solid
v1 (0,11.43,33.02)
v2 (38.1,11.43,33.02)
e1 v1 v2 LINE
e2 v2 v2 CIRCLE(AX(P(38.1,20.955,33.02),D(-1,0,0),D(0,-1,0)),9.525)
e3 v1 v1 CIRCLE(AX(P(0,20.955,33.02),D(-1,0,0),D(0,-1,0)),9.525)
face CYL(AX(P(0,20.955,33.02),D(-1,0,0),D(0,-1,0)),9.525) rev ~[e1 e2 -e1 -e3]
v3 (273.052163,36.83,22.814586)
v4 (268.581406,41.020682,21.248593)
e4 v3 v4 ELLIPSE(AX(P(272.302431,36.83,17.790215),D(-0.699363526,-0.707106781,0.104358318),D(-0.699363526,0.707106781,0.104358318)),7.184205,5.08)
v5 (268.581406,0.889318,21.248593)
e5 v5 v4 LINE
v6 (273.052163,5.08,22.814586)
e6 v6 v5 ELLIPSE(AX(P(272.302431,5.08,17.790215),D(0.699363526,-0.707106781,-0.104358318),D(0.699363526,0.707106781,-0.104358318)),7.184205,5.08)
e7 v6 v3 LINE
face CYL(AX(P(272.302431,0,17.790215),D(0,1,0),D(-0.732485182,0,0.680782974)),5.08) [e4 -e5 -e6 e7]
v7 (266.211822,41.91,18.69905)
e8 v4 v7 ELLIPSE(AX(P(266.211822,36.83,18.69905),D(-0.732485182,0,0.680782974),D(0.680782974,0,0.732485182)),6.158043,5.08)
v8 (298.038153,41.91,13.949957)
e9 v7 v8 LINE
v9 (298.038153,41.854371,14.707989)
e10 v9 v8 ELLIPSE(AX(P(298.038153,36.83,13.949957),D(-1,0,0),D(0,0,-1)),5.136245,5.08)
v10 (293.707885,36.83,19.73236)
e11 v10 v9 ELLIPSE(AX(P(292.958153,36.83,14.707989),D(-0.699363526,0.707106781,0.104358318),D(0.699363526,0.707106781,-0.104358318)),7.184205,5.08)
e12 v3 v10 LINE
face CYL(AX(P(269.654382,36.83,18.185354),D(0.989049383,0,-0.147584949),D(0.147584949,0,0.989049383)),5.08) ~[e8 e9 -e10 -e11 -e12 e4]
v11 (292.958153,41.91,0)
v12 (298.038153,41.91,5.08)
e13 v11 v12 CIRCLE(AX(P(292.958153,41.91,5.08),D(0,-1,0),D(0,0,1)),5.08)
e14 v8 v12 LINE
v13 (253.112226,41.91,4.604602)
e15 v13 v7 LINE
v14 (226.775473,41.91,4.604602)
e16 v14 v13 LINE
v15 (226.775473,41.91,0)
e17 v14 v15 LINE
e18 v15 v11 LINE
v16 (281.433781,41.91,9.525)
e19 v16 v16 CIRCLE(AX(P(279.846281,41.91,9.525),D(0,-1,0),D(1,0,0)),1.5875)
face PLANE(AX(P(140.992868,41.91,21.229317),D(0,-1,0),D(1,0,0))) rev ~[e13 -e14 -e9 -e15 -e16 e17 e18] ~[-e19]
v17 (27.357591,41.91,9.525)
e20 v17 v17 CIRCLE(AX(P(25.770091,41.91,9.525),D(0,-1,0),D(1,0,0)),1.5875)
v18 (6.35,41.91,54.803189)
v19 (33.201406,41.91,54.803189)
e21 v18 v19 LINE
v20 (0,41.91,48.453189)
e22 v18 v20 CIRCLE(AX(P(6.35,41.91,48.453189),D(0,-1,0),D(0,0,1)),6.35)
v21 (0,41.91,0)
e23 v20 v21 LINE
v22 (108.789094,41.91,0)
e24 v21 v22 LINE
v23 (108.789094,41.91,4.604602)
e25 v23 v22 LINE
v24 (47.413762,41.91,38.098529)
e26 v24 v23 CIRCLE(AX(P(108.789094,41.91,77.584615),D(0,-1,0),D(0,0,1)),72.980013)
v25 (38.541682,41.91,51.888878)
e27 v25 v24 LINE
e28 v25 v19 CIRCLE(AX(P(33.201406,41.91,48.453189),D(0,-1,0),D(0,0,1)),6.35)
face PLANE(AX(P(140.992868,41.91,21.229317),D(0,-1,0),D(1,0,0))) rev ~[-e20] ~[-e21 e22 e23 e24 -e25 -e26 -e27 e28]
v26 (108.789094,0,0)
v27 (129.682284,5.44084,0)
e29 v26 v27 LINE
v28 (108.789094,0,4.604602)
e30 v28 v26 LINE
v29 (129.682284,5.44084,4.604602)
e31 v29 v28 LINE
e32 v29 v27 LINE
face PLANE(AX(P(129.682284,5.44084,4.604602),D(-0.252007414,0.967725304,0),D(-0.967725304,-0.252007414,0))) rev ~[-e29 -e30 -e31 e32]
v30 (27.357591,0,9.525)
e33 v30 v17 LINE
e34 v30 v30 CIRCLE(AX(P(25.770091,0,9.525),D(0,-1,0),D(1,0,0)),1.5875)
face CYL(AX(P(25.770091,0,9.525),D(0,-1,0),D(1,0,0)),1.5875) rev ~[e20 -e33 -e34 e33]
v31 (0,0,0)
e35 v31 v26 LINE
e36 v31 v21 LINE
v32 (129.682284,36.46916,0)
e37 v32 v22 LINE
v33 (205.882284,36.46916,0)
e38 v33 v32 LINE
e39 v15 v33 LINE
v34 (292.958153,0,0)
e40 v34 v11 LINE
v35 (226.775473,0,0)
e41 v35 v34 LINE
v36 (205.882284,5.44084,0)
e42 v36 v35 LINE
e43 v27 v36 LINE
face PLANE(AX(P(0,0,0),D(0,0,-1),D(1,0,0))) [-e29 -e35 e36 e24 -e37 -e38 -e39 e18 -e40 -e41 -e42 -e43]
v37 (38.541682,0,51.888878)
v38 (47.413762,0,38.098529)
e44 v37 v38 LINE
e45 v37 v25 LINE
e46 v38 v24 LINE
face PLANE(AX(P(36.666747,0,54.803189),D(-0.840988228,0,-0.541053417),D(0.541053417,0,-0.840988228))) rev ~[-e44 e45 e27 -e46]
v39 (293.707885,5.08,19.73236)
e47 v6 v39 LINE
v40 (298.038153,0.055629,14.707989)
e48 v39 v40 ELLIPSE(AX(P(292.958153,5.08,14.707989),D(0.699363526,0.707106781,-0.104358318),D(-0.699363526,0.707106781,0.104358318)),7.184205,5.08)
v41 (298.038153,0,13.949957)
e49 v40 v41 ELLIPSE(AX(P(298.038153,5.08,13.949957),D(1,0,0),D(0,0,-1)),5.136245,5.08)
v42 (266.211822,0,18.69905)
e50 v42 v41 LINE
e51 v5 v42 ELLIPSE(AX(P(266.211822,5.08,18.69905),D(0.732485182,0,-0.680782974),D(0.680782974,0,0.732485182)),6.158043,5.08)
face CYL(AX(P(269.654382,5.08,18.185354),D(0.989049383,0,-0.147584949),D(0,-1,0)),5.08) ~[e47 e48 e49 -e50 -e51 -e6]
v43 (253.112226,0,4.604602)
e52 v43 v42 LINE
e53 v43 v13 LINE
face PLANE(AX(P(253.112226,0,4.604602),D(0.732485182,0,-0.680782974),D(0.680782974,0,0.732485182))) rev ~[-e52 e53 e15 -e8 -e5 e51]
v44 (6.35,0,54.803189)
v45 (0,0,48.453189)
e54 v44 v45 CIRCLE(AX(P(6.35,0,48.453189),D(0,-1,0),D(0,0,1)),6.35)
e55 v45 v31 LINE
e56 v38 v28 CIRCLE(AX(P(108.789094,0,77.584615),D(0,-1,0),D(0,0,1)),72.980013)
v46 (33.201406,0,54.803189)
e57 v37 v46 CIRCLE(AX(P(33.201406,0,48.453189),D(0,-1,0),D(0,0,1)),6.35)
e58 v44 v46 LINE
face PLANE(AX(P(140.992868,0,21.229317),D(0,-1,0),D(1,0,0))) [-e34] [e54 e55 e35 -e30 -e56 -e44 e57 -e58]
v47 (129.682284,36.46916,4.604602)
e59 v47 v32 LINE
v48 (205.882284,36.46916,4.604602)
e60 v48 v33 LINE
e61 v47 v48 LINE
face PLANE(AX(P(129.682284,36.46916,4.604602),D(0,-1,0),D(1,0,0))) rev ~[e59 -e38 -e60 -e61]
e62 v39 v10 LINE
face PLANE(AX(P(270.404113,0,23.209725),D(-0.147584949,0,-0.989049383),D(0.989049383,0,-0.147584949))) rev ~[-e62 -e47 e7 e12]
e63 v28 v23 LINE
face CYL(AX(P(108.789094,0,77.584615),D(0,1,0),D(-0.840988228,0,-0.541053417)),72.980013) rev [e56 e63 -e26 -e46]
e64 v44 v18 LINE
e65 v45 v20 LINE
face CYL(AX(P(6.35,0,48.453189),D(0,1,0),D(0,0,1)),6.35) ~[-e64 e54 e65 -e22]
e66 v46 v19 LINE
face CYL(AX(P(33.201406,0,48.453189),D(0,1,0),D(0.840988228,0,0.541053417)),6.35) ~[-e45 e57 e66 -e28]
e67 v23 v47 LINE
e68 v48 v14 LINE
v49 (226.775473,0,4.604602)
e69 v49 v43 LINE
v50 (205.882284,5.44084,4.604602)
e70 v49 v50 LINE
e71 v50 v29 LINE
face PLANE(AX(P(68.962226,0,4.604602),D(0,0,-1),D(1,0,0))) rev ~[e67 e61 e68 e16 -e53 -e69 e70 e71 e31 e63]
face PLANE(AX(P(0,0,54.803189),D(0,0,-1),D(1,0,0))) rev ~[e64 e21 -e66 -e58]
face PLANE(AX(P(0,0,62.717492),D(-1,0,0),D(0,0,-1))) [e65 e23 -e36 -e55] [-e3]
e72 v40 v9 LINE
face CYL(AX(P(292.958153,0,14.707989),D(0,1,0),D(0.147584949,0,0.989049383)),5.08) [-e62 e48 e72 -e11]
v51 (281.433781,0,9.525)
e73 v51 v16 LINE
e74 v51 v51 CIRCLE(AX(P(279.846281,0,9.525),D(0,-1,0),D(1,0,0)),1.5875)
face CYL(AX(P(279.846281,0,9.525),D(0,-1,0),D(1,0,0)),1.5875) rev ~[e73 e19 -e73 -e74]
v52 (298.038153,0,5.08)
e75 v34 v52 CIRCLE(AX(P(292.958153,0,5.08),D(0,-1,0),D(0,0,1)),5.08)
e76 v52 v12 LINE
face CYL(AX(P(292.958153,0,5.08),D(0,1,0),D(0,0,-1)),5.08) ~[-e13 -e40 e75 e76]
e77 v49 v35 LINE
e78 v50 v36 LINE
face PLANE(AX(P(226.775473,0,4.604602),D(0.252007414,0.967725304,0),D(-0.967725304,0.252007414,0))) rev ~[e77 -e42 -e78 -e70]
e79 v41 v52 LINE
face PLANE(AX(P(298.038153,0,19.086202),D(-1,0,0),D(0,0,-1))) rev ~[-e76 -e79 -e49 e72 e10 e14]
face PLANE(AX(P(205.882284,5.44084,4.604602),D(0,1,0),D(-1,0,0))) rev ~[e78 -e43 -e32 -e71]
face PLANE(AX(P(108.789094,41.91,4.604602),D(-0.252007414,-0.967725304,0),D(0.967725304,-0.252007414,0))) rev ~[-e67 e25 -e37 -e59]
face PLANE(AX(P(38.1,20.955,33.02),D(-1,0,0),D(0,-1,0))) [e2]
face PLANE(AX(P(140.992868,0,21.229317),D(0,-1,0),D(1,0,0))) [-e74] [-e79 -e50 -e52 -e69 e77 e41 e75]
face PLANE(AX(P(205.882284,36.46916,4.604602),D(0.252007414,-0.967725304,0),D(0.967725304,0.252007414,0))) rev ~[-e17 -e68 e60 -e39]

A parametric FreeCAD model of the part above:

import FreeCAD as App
import Part
import Sketcher
from FreeCAD import Vector
Q = App.Units.Quantity


def edges_at(feature, points):
    """Names of the edges that pass closest to the given points."""
    edges = feature.Shape.Edges
    near = lambda p: min(range(len(edges)), key=lambda i: edges[i].distToShape(Part.Vertex(*p))[0])
    return sorted({f"Edge{near(p) + 1}" for p in points})

doc = App.newDocument("Part")
body = doc.addObject("PartDesign::Body", "Body")

sketch1 = body.newObject("Sketcher::SketchObject", "Sketch")
sketch1.AttachmentSupport = (doc.getObject("XZ_Plane"), [""])
sketch1.MapMode = "FlatFace"
sketch1.addGeometry([
    Part.LineSegment(Vector(0, 63, 0), Vector(0, 0, 0)),
    Part.LineSegment(Vector(0, 0, 0), Vector(301, 0, 0)),
    Part.LineSegment(Vector(301, 0, 0), Vector(301, 19, 0)),
    Part.LineSegment(Vector(301, 19, 0), Vector(0, 63, 0)),
], False)
sketch1.addConstraint([
    Sketcher.Constraint("Coincident", 0, 2, 1, 1),
    Sketcher.Constraint("Coincident", 1, 2, 2, 1),
    Sketcher.Constraint("Coincident", 2, 2, 3, 1),
    Sketcher.Constraint("Coincident", 3, 2, 0, 1),
    Sketcher.Constraint("Vertical", 0),
    Sketcher.Constraint("Horizontal", 1),
    Sketcher.Constraint("Vertical", 2),
    Sketcher.Constraint("Coincident", 0, 2, -1, 1),
    Sketcher.Constraint("DistanceY", 2, 1, 2, 2, Q("0.75 in")),
    Sketcher.Constraint("DistanceX", 1, 1, 1, 2, Q("301.121329 mm")),
    Sketcher.Constraint("DistanceY", 0, 2, 0, 1, Q("62.717492 mm")),
])
pad1 = body.newObject("PartDesign::Pad", "Pad")
pad1.Profile = sketch1
pad1.Length = Q("1.65 in")
pad1.Reversed = True

sketch2 = body.newObject("Sketcher::SketchObject", "Sketch001")
sketch2.AttachmentSupport = (doc.getObject("YZ_Plane"), [""])
sketch2.MapMode = "FlatFace"
sketch2.addGeometry(Part.Circle(Vector(21, 33, 0), Vector(0, 0, 1), 10), False)
sketch2.addConstraint([
    Sketcher.Constraint("Diameter", 0, Q("0.75 in")),
    Sketcher.Constraint("DistanceY", -1, 1, 0, 3, Q("1.3 in")),
    Sketcher.Constraint("DistanceX", -1, 1, 0, 3, Q("0.825 in")),
])
pocket1 = body.newObject("PartDesign::Pocket", "Pocket")
pocket1.Profile = sketch2
pocket1.Length = Q("1.5 in")
pocket1.Reversed = True

sketch3 = body.newObject("Sketcher::SketchObject", "Sketch002")
sketch3.AttachmentSupport = (doc.getObject("XZ_Plane"), [""])
sketch3.MapMode = "FlatFace"
sketch3.addGeometry([
    Part.LineSegment(Vector(36.7, 54.8, 0), Vector(69, 4.6, 0)),
    Part.LineSegment(Vector(69, 4.6, 0), Vector(253.1, 4.6, 0)),
    Part.LineSegment(Vector(253.1, 4.6, 0), Vector(270.4, 23.2, 0)),
    Part.LineSegment(Vector(270.4, 23.2, 0), Vector(298, 19.1, 0)),
    Part.LineSegment(Vector(298, 19.1, 0), Vector(298, 0, 0)),
    Part.LineSegment(Vector(298, 0, 0), Vector(301.1, 0, 0)),
    Part.LineSegment(Vector(301.1, 0, 0), Vector(301.1, 19.1, 0)),
    Part.LineSegment(Vector(301.1, 19.1, 0), Vector(0, 62.7, 0)),
    Part.LineSegment(Vector(0, 62.7, 0), Vector(0, 54.8, 0)),
    Part.LineSegment(Vector(0, 54.8, 0), Vector(36.7, 54.8, 0)),
], False)
sketch3.addConstraint([
    Sketcher.Constraint("Coincident", 0, 2, 1, 1),
    Sketcher.Constraint("Coincident", 1, 2, 2, 1),
    Sketcher.Constraint("Coincident", 2, 2, 3, 1),
    Sketcher.Constraint("Coincident", 3, 2, 4, 1),
    Sketcher.Constraint("Coincident", 4, 2, 5, 1),
    Sketcher.Constraint("Coincident", 5, 2, 6, 1),
    Sketcher.Constraint("Coincident", 6, 2, 7, 1),
    Sketcher.Constraint("Coincident", 7, 2, 8, 1),
    Sketcher.Constraint("Coincident", 8, 2, 9, 1),
    Sketcher.Constraint("Coincident", 9, 2, 0, 1),
    Sketcher.Constraint("Horizontal", 1),
    Sketcher.Constraint("Vertical", 4),
    Sketcher.Constraint("Horizontal", 5),
    Sketcher.Constraint("Vertical", 6),
    Sketcher.Constraint("Vertical", 8),
    Sketcher.Constraint("Horizontal", 9),
    Sketcher.Constraint("PointOnObject", 4, 2, -1),
    Sketcher.Constraint("PointOnObject", 7, 2, -2),
    Sketcher.Constraint("Distance", 2, Q("1 in")),
    Sketcher.Constraint("Distance", 3, Q("1.1 in")),
    Sketcher.Constraint("DistanceX", 1, 1, 1, 2, Q("7.25 in")),
    Sketcher.Constraint("DistanceY", 6, 1, 6, 2, Q("0.75 in")),
    Sketcher.Constraint("Distance", 0, Q("2.35 in")),
    Sketcher.Constraint("DistanceY", 4, 2, 4, 1, Q("19.086202 mm")),
    Sketcher.Constraint("DistanceY", -1, 1, 0, 2, Q("4.604602 mm")),
    Sketcher.Constraint("DistanceX", 5, 1, 5, 2, Q("3.083176 mm")),
    Sketcher.Constraint("DistanceX", 9, 1, 9, 2, Q("36.666747 mm")),
    Sketcher.Constraint("DistanceY", 8, 2, 8, 1, Q("7.914304 mm")),
    Sketcher.Constraint("DistanceX", -1, 1, 5, 2, Q("301.121329 mm")),
    Sketcher.Constraint("DistanceY", -1, 1, 8, 2, Q("54.803189 mm")),
])
pocket2 = body.newObject("PartDesign::Pocket", "Pocket001")
pocket2.Profile = sketch3
pocket2.Length = Q("1.65 in")
doc.recompute()

fillet = body.newObject("PartDesign::Fillet", "Fillet")
fillet.Base = (pocket2, edges_at(pocket2, [(68.962, 20.955, 4.605)]))
fillet.Radius = 72.980013
doc.recompute()

fillet2 = body.newObject("PartDesign::Fillet", "Fillet001")
fillet2.Base = (fillet, edges_at(fillet, [(36.667, 20.955, 54.803), (0, 20.955, 54.803)]))
fillet2.Radius = Q("0.25 in")

sketch4 = body.newObject("Sketcher::SketchObject", "Sketch003")
sketch4.AttachmentSupport = (doc.getObject("XZ_Plane"), [""])
sketch4.MapMode = "FlatFace"
sketch4.addGeometry(Part.Circle(Vector(279.8, 9.5, 0), Vector(0, 0, 1), 1.6), False)
sketch4.addConstraint([
    Sketcher.Constraint("Diameter", 0, Q("0.125 in")),
    Sketcher.Constraint("DistanceY", -1, 1, 0, 3, Q("0.375 in")),
    Sketcher.Constraint("DistanceX", -1, 1, 0, 3, Q("279.846281 mm")),
])
pocket3 = body.newObject("PartDesign::Pocket", "Pocket002")
pocket3.Profile = sketch4
pocket3.Length = Q("5.05 in")

sketch5 = body.newObject("Sketcher::SketchObject", "Sketch004")
sketch5.AttachmentSupport = (doc.getObject("XZ_Plane"), [""])
sketch5.MapMode = "FlatFace"
sketch5.addGeometry([
    Part.Circle(Vector(279.8, 9.5, 0), Vector(0, 0, 1), 1.6),
    Part.Circle(Vector(25.8, 9.5, 0), Vector(0, 0, 1), 1.6),
], False)
sketch5.addConstraint([
    Sketcher.Constraint("Equal", 0, 1),
    Sketcher.Constraint("Horizontal", 0, 3, 1, 3),
    Sketcher.Constraint("Diameter", 0, Q("0.125 in")),
    Sketcher.Constraint("DistanceY", -1, 1, 0, 3, Q("0.375 in")),
    Sketcher.Constraint("DistanceX", -1, 1, 0, 3, Q("279.846281 mm")),
    Sketcher.Constraint("DistanceX", -1, 1, 1, 3, Q("25.770091 mm")),
])
pocket4 = body.newObject("PartDesign::Pocket", "Pocket003")
pocket4.Profile = sketch5
pocket4.Length = Q("3.57 in")
doc.recompute()

fillet3 = body.newObject("PartDesign::Fillet", "Fillet002")
fillet3.Base = (pocket4, edges_at(pocket4, [
    (298.038, 20.955, 19.086),
    (270.404, 20.955, 23.21),
    (284.221, 41.91, 21.148),
    (284.221, 0, 21.148),
    (298.038, 20.955, 0),
]))
fillet3.Radius = Q("0.2 in")

sketch6 = body.newObject("Sketcher::SketchObject", "Sketch005")
sketch6.AttachmentSupport = (doc.getObject("XY_Plane"), [""])
sketch6.MapMode = "FlatFace"
sketch6.AttachmentOffset = App.Placement(Vector(0, 0, 4.604602), App.Rotation())
sketch6.addGeometry([
    Part.LineSegment(Vector(109, 0, 0), Vector(227, 0, 0)),
    Part.LineSegment(Vector(227, 0, 0), Vector(206, 5, 0)),
    Part.LineSegment(Vector(206, 5, 0), Vector(130, 5, 0)),
    Part.LineSegment(Vector(130, 5, 0), Vector(109, 0, 0)),
    Part.LineSegment(Vector(206, 36, 0), Vector(227, 42, 0)),
    Part.LineSegment(Vector(227, 42, 0), Vector(109, 42, 0)),
    Part.LineSegment(Vector(109, 42, 0), Vector(130, 36, 0)),
    Part.LineSegment(Vector(130, 36, 0), Vector(206, 36, 0)),
], False)
sketch6.addConstraint([
    Sketcher.Constraint("Coincident", 0, 2, 1, 1),
    Sketcher.Constraint("Coincident", 1, 2, 2, 1),
    Sketcher.Constraint("Coincident", 2, 2, 3, 1),
    Sketcher.Constraint("Coincident", 3, 2, 0, 1),
    Sketcher.Constraint("Coincident", 4, 2, 5, 1),
    Sketcher.Constraint("Coincident", 5, 2, 6, 1),
    Sketcher.Constraint("Coincident", 6, 2, 7, 1),
    Sketcher.Constraint("Coincident", 7, 2, 4, 1),
    Sketcher.Constraint("Horizontal", 0),
    Sketcher.Constraint("Horizontal", 2),
    Sketcher.Constraint("Horizontal", 5),
    Sketcher.Constraint("Horizontal", 7),
    Sketcher.Constraint("PointOnObject", 0, 2, -1),
    Sketcher.Constraint("Parallel", 3, 4),
    Sketcher.Constraint("Parallel", 1, 6),
    Sketcher.Constraint("Vertical", 0, 2, 4, 2),
    Sketcher.Constraint("Vertical", 3, 2, 5, 2),
    Sketcher.Constraint("Vertical", 2, 2, 6, 2),
    Sketcher.Constraint("Vertical", 1, 2, 7, 2),
    Sketcher.Constraint("DistanceX", 2, 2, 2, 1, Q("3 in")),
    Sketcher.Constraint("Distance", 1, Q("0.85 in")),
    Sketcher.Constraint("DistanceY", -1, 1, 4, 2, Q("1.65 in")),
    Sketcher.Constraint("DistanceX", 0, 1, 0, 2, Q("117.986379 mm")),
    Sketcher.Constraint("DistanceX", -1, 1, 0, 2, Q("226.775473 mm")),
])
pocket5 = body.newObject("PartDesign::Pocket", "Pocket004")
pocket5.Profile = sketch6
pocket5.Length = Q("1.56 in")

doc.recompute()
